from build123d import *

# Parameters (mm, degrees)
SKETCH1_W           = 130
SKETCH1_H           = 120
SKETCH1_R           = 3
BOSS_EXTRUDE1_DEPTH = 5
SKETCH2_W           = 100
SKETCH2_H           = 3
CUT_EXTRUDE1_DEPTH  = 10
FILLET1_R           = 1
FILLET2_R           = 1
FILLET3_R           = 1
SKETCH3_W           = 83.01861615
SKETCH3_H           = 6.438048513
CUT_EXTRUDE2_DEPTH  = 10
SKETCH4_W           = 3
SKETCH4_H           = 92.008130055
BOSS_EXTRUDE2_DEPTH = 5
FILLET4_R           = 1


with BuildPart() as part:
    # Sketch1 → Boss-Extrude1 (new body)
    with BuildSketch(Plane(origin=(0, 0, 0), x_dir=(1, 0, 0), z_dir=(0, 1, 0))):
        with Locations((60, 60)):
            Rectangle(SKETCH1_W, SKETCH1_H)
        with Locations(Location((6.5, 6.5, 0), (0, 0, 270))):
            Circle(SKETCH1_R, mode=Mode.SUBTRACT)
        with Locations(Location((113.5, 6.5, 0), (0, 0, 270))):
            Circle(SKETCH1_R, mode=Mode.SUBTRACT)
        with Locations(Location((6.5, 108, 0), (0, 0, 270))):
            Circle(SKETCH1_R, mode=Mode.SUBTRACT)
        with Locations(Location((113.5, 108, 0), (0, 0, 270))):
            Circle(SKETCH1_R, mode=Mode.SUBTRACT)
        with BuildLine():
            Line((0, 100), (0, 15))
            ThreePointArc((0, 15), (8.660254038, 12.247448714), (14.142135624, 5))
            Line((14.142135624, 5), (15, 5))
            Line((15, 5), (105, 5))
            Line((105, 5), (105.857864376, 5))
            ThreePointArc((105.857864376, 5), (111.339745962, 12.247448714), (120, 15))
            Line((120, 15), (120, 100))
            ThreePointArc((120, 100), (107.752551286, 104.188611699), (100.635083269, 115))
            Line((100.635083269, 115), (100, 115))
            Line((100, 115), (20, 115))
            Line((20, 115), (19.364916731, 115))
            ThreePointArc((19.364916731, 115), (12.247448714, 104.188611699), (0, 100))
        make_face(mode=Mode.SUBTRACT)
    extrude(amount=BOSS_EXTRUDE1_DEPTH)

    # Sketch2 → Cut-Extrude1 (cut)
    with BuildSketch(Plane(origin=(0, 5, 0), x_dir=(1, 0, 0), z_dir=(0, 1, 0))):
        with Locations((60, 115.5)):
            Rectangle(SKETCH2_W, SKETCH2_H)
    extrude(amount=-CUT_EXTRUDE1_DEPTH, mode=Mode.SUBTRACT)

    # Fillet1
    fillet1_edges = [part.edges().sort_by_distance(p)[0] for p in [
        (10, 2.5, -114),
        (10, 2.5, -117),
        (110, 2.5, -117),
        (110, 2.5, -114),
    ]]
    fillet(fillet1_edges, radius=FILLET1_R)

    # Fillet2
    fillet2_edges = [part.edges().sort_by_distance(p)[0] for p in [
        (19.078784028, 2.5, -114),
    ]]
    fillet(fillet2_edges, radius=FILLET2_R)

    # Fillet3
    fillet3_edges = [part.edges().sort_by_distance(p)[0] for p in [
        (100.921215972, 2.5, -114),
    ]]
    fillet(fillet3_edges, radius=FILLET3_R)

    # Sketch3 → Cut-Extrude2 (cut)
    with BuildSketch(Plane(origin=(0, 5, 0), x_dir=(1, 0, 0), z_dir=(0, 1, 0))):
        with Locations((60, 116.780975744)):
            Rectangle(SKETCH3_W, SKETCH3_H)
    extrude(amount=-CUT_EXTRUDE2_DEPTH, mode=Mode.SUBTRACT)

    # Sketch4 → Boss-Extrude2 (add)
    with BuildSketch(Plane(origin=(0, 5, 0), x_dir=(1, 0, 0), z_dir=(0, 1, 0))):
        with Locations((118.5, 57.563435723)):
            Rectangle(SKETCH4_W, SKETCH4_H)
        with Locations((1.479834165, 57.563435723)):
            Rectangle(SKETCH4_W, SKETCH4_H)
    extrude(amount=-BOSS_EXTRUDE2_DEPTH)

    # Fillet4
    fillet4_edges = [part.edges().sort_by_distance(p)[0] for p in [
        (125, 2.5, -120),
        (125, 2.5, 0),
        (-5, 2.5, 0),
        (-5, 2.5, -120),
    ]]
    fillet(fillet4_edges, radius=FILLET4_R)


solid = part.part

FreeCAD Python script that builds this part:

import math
import FreeCAD as App
import Part
import Sketcher
from FreeCAD import Vector
Q = App.Units.Quantity


def edges_at(feature, points):
    """Names of the edges that pass closest to the given points."""
    edges = feature.Shape.Edges
    near = lambda p: min(range(len(edges)), key=lambda i: edges[i].distToShape(Part.Vertex(*p))[0])
    return sorted({f"Edge{near(p) + 1}" for p in points})

doc = App.newDocument("Part")
body = doc.addObject("PartDesign::Body", "Body")

# Sketch on XZ plane
sketch1 = body.newObject("Sketcher::SketchObject", "Sketch")
sketch1.AttachmentSupport = (doc.getObject("XZ_Plane"), [""])
sketch1.MapMode = "FlatFace"
sketch1.addGeometry([
    Part.LineSegment(Vector(-5, -120, 0), Vector(-5, 0, 0)),  # 0
    Part.LineSegment(Vector(-5, 0, 0), Vector(125, 0, 0)),  # 1
    Part.LineSegment(Vector(125, 0, 0), Vector(125, -120, 0)),  # 2
    Part.LineSegment(Vector(125, -120, 0), Vector(-5, -120, 0)),  # 3
    Part.Circle(Vector(6.5, -6.5, 0), Vector(0, 0, 1), 3),  # 4
    Part.Circle(Vector(113.5, -6.5, 0), Vector(0, 0, 1), 3),  # 5
    Part.Circle(Vector(6.5, -108, 0), Vector(0, 0, 1), 3),  # 6
    Part.LineSegment(Vector(0, -15, 0), Vector(0, -100, 0)),  # 7
    Part.ArcOfCircle(Part.Circle(Vector(0, -120, 0), Vector(0, 0, 1), 20), math.radians(14), math.radians(90)),  # 8
    Part.LineSegment(Vector(19.4, -115, 0), Vector(100.6, -115, 0)),  # 9
    Part.ArcOfCircle(Part.Circle(Vector(120, -120, 0), Vector(0, 0, 1), 20), math.radians(90), math.radians(166)),  # 10
    Part.LineSegment(Vector(120, -100, 0), Vector(120, -15, 0)),  # 11
    Part.ArcOfCircle(Part.Circle(Vector(120, 0, 0), Vector(0, 0, 1), 15), math.radians(-161), math.radians(-90)),  # 12
    Part.LineSegment(Vector(105.9, -5, 0), Vector(14.1, -5, 0)),  # 13
    Part.ArcOfCircle(Part.Circle(Vector(0, 0, 0), Vector(0, 0, 1), 15), math.radians(-90), math.radians(-19)),  # 14
    Part.Circle(Vector(113.5, -108, 0), Vector(0, 0, 1), 3),  # 15
], False)
sketch1.addConstraint([
    Sketcher.Constraint("Coincident", 0, 2, 1, 1),
    Sketcher.Constraint("Coincident", 1, 2, 2, 1),
    Sketcher.Constraint("Coincident", 2, 2, 3, 1),
    Sketcher.Constraint("Coincident", 3, 2, 0, 1),
    Sketcher.Constraint("Coincident", 7, 2, 8, 2),
    Sketcher.Constraint("Coincident", 8, 1, 9, 1),
    Sketcher.Constraint("Coincident", 9, 2, 10, 2),
    Sketcher.Constraint("Coincident", 10, 1, 11, 1),
    Sketcher.Constraint("Coincident", 11, 2, 12, 2),
    Sketcher.Constraint("Coincident", 12, 1, 13, 1),
    Sketcher.Constraint("Coincident", 13, 2, 14, 2),
    Sketcher.Constraint("Coincident", 14, 1, 7, 1),
    Sketcher.Constraint("Vertical", 0),
    Sketcher.Constraint("Horizontal", 1),
    Sketcher.Constraint("Vertical", 2),
    Sketcher.Constraint("Horizontal", 3),
    Sketcher.Constraint("Vertical", 7),
    Sketcher.Constraint("Horizontal", 9),
    Sketcher.Constraint("Vertical", 11),
    Sketcher.Constraint("Horizontal", 13),
    Sketcher.Constraint("Coincident", 14, 3, -1, 1),
    Sketcher.Constraint("Equal", 4, 5),
    Sketcher.Constraint("Equal", 5, 6),
    Sketcher.Constraint("Equal", 8, 10),
    Sketcher.Constraint("Equal", 12, 14),
    Sketcher.Constraint("Equal", 6, 15),
    Sketcher.Constraint("PointOnObject", 8, 3, -2),
    Sketcher.Constraint("PointOnObject", 12, 3, -1),
    Sketcher.Constraint("PointOnObject", 0, 2, -1),
    Sketcher.Constraint("PointOnObject", 7, 2, -2),
    Sketcher.Constraint("Horizontal", 4, 3, 5, 3),
    Sketcher.Constraint("Horizontal", 8, 3, 10, 3),
    Sketcher.Constraint("Horizontal", 6, 3, 15, 3),
    Sketcher.Constraint("Horizontal", 10, 3, 2, 2),
    Sketcher.Constraint("Vertical", 4, 3, 6, 3),
    Sketcher.Constraint("Vertical", 10, 3, 12, 3),
    Sketcher.Constraint("Vertical", 5, 3, 15, 3),
    Sketcher.Constraint("Vertical", 12, 3, 10, 1),
    Sketcher.Constraint("Diameter", 4, Q("6 mm")),
    Sketcher.Constraint("Radius", 8, Q("20 mm")),
    Sketcher.Constraint("Radius", 12, Q("15 mm")),
    Sketcher.Constraint("DistanceX", 1, 1, 1, 2, Q("130 mm")),
    Sketcher.Constraint("DistanceY", 0, 1, 0, 2, Q("120 mm")),
    Sketcher.Constraint("DistanceY", 6, 3, -1, 1, Q("108 mm")),
    Sketcher.Constraint("DistanceX", -1, 1, 10, 3, Q("120 mm")),
    Sketcher.Constraint("DistanceX", 0, 2, -1, 1, Q("5 mm")),
    Sketcher.Constraint("DistanceY", 8, 1, -1, 1, Q("115 mm")),
    Sketcher.Constraint("DistanceY", 12, 1, -1, 1, Q("5 mm")),
    Sketcher.Constraint("DistanceX", 4, 3, 5, 3, Q("107 mm")),
    Sketcher.Constraint("DistanceX", -1, 1, 4, 3, Q("6.5 mm")),
    Sketcher.Constraint("DistanceY", 4, 3, -1, 1, Q("6.5 mm")),
])
pad1 = body.newObject("PartDesign::Pad", "Pad")
pad1.Profile = sketch1
pad1.Length = 5
pad1.Reversed = True

# Sketch on XZ plane
sketch2 = body.newObject("Sketcher::SketchObject", "Sketch001")
sketch2.AttachmentSupport = (doc.getObject("XZ_Plane"), [""])
sketch2.MapMode = "FlatFace"
sketch2.AttachmentOffset = App.Placement(Vector(0, 0, -5), App.Rotation())
sketch2.addGeometry([
    Part.LineSegment(Vector(10, -117, 0), Vector(10, -114, 0)),
    Part.LineSegment(Vector(10, -114, 0), Vector(110, -114, 0)),
    Part.LineSegment(Vector(110, -114, 0), Vector(110, -117, 0)),
    Part.LineSegment(Vector(110, -117, 0), Vector(10, -117, 0)),
], False)
sketch2.addConstraint([
    Sketcher.Constraint("Coincident", 0, 2, 1, 1),
    Sketcher.Constraint("Coincident", 1, 2, 2, 1),
    Sketcher.Constraint("Coincident", 2, 2, 3, 1),
    Sketcher.Constraint("Coincident", 3, 2, 0, 1),
    Sketcher.Constraint("Vertical", 0),
    Sketcher.Constraint("Horizontal", 1),
    Sketcher.Constraint("Vertical", 2),
    Sketcher.Constraint("Horizontal", 3),
    Sketcher.Constraint("DistanceX", 1, 1, 1, 2, Q("100 mm")),
    Sketcher.Constraint("DistanceY", 0, 1, 0, 2, Q("3 mm")),
    Sketcher.Constraint("DistanceX", -1, 1, 0, 2, Q("10 mm")),
    Sketcher.Constraint("DistanceY", 0, 2, -1, 1, Q("114 mm")),
])
pocket1 = body.newObject("PartDesign::Pocket", "Pocket")
pocket1.Profile = sketch2
pocket1.Length = 10
pocket1.Reversed = True
doc.recompute()

fillet = body.newObject("PartDesign::Fillet", "Fillet")
fillet.Base = (pocket1, edges_at(pocket1, [
    (10, 2.5, -114),
    (10, 2.5, -117),
    (110, 2.5, -117),
    (110, 2.5, -114),
]))
fillet.Radius = 1
doc.recompute()

fillet2 = body.newObject("PartDesign::Fillet", "Fillet001")
fillet2.Base = (fillet, edges_at(fillet, [(19.079, 2.5, -114)]))
fillet2.Radius = 1
doc.recompute()

fillet3 = body.newObject("PartDesign::Fillet", "Fillet002")
fillet3.Base = (fillet2, edges_at(fillet2, [(100.921, 2.5, -114)]))
fillet3.Radius = 1

# Sketch on XZ plane
sketch3 = body.newObject("Sketcher::SketchObject", "Sketch002")
sketch3.AttachmentSupport = (doc.getObject("XZ_Plane"), [""])
sketch3.MapMode = "FlatFace"
sketch3.AttachmentOffset = App.Placement(Vector(0, 0, -5), App.Rotation())
sketch3.addGeometry([
    Part.LineSegment(Vector(18, -120, 0), Vector(18, -114, 0)),
    Part.LineSegment(Vector(18, -114, 0), Vector(102, -114, 0)),
    Part.LineSegment(Vector(102, -114, 0), Vector(102, -120, 0)),
    Part.LineSegment(Vector(102, -120, 0), Vector(18, -120, 0)),
], False)
sketch3.addConstraint([
    Sketcher.Constraint("Coincident", 0, 2, 1, 1),
    Sketcher.Constraint("Coincident", 1, 2, 2, 1),
    Sketcher.Constraint("Coincident", 2, 2, 3, 1),
    Sketcher.Constraint("Coincident", 3, 2, 0, 1),
    Sketcher.Constraint("Vertical", 0),
    Sketcher.Constraint("Horizontal", 1),
    Sketcher.Constraint("Vertical", 2),
    Sketcher.Constraint("Horizontal", 3),
    Sketcher.Constraint("DistanceY", 2, 2, -1, 1, Q("120 mm")),
    Sketcher.Constraint("DistanceY", 0, 1, 0, 2, Q("6.438049 mm")),
    Sketcher.Constraint("DistanceX", 1, 1, 1, 2, Q("83.018616 mm")),
    Sketcher.Constraint("DistanceX", -1, 1, 0, 2, Q("18.490692 mm")),
])
pocket2 = body.newObject("PartDesign::Pocket", "Pocket001")
pocket2.Profile = sketch3
pocket2.Length = 10
pocket2.Reversed = True

# Sketch on XZ plane
sketch4 = body.newObject("Sketcher::SketchObject", "Sketch003")
sketch4.AttachmentSupport = (doc.getObject("XZ_Plane"), [""])
sketch4.MapMode = "FlatFace"
sketch4.AttachmentOffset = App.Placement(Vector(0, 0, -5), App.Rotation())
sketch4.addGeometry([
    Part.LineSegment(Vector(117, -103.6, 0), Vector(117, -11.6, 0)),  # 0
    Part.LineSegment(Vector(117, -11.6, 0), Vector(120, -11.6, 0)),  # 1
    Part.LineSegment(Vector(120, -11.6, 0), Vector(120, -103.6, 0)),  # 2
    Part.LineSegment(Vector(120, -103.6, 0), Vector(117, -103.6, 0)),  # 3
    Part.LineSegment(Vector(0, -103.6, 0), Vector(0, -11.6, 0)),  # 4
    Part.LineSegment(Vector(0, -11.6, 0), Vector(3, -11.6, 0)),  # 5
    Part.LineSegment(Vector(3, -11.6, 0), Vector(3, -103.6, 0)),  # 6
    Part.LineSegment(Vector(3, -103.6, 0), Vector(0, -103.6, 0)),  # 7
], False)
sketch4.addConstraint([
    Sketcher.Constraint("Coincident", 0, 2, 1, 1),
    Sketcher.Constraint("Coincident", 1, 2, 2, 1),
    Sketcher.Constraint("Coincident", 2, 2, 3, 1),
    Sketcher.Constraint("Coincident", 3, 2, 0, 1),
    Sketcher.Constraint("Coincident", 4, 2, 5, 1),
    Sketcher.Constraint("Coincident", 5, 2, 6, 1),
    Sketcher.Constraint("Coincident", 6, 2, 7, 1),
    Sketcher.Constraint("Coincident", 7, 2, 4, 1),
    Sketcher.Constraint("Vertical", 0),
    Sketcher.Constraint("Horizontal", 1),
    Sketcher.Constraint("Vertical", 2),
    Sketcher.Constraint("Horizontal", 3),
    Sketcher.Constraint("Vertical", 4),
    Sketcher.Constraint("Horizontal", 5),
    Sketcher.Constraint("Vertical", 6),
    Sketcher.Constraint("Horizontal", 7),
    Sketcher.Constraint("Horizontal", 1, 2, 4, 2),
    Sketcher.Constraint("Horizontal", 3, 2, 6, 2),
    Sketcher.Constraint("Equal", 3, 5),
    Sketcher.Constraint("DistanceX", 1, 1, 1, 2, Q("3 mm")),
    Sketcher.Constraint("DistanceX", -1, 1, 0, 2, Q("117 mm")),
    Sketcher.Constraint("DistanceY", 0, 1, 0, 2, Q("92.00813 mm")),
    Sketcher.Constraint("DistanceY", 2, 2, -1, 1, Q("103.567501 mm")),
    Sketcher.Constraint("DistanceX", 4, 2, -1, 1, Q("0.020166 mm")),
])
pad2 = body.newObject("PartDesign::Pad", "Pad001")
pad2.Profile = sketch4
pad2.Length = 5
doc.recompute()

fillet4 = body.newObject("PartDesign::Fillet", "Fillet003")
fillet4.Base = (pad2, edges_at(pad2, [
    (125, 2.5, -120),
    (125, 2.5, 0),
    (-5, 2.5, 0),
    (-5, 2.5, -120),
]))
fillet4.Radius = 1

doc.recompute()
